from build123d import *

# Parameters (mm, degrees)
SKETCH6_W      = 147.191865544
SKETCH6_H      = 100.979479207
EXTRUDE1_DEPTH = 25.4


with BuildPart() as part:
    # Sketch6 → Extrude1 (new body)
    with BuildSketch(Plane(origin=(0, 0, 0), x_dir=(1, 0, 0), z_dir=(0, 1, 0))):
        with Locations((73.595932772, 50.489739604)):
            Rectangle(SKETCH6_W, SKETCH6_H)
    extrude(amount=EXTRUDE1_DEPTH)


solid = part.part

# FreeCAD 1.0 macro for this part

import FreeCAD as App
import Part
import Sketcher
from FreeCAD import Vector
Q = App.Units.Quantity

doc = App.newDocument("Part")
params = doc.addObject("Spreadsheet::Sheet", "Params")
for row, (alias, value) in enumerate([
    ("pad1_length", "1 in"),
], start=1):
    params.set(f"A{row}", alias)
    params.set(f"B{row}", "=" + value)
    params.setAlias(f"B{row}", alias)

body = doc.addObject("PartDesign::Body", "Body")

# Sketch on XZ plane
sketch1 = body.newObject("Sketcher::SketchObject", "Sketch")
sketch1.AttachmentSupport = (doc.getObject("XZ_Plane"), [""])
sketch1.MapMode = "FlatFace"
sketch1.addGeometry(Part.LineSegment(Vector(0, -101, 0), Vector(0, 0, 0)), False)
sketch1.addGeometry(Part.LineSegment(Vector(0, 0, 0), Vector(147, 0, 0)), False)
sketch1.addGeometry(Part.LineSegment(Vector(147, 0, 0), Vector(147, -101, 0)), False)
sketch1.addGeometry(Part.LineSegment(Vector(147, -101, 0), Vector(0, -101, 0)), False)
sketch1.addConstraint(Sketcher.Constraint("Coincident", 0, 2, 1, 1))
sketch1.addConstraint(Sketcher.Constraint("Coincident", 1, 2, 2, 1))
sketch1.addConstraint(Sketcher.Constraint("Coincident", 2, 2, 3, 1))
sketch1.addConstraint(Sketcher.Constraint("Coincident", 3, 2, 0, 1))
sketch1.addConstraint(Sketcher.Constraint("Vertical", 0))
sketch1.addConstraint(Sketcher.Constraint("Horizontal", 1))
sketch1.addConstraint(Sketcher.Constraint("Vertical", 2))
sketch1.addConstraint(Sketcher.Constraint("Horizontal", 3))
sketch1.addConstraint(Sketcher.Constraint("Coincident", 0, 2, -1, 1))
sketch1.addConstraint(Sketcher.Constraint("DistanceY", 0, 1, 0, 2, Q("100.979479 mm")))
sketch1.addConstraint(Sketcher.Constraint("DistanceX", 1, 1, 1, 2, Q("147.191866 mm")))
pad1 = body.newObject("PartDesign::Pad", "Pad")
pad1.Profile = sketch1
pad1.setExpression("Length", "Params.pad1_length")
pad1.Reversed = True

doc.recompute()
